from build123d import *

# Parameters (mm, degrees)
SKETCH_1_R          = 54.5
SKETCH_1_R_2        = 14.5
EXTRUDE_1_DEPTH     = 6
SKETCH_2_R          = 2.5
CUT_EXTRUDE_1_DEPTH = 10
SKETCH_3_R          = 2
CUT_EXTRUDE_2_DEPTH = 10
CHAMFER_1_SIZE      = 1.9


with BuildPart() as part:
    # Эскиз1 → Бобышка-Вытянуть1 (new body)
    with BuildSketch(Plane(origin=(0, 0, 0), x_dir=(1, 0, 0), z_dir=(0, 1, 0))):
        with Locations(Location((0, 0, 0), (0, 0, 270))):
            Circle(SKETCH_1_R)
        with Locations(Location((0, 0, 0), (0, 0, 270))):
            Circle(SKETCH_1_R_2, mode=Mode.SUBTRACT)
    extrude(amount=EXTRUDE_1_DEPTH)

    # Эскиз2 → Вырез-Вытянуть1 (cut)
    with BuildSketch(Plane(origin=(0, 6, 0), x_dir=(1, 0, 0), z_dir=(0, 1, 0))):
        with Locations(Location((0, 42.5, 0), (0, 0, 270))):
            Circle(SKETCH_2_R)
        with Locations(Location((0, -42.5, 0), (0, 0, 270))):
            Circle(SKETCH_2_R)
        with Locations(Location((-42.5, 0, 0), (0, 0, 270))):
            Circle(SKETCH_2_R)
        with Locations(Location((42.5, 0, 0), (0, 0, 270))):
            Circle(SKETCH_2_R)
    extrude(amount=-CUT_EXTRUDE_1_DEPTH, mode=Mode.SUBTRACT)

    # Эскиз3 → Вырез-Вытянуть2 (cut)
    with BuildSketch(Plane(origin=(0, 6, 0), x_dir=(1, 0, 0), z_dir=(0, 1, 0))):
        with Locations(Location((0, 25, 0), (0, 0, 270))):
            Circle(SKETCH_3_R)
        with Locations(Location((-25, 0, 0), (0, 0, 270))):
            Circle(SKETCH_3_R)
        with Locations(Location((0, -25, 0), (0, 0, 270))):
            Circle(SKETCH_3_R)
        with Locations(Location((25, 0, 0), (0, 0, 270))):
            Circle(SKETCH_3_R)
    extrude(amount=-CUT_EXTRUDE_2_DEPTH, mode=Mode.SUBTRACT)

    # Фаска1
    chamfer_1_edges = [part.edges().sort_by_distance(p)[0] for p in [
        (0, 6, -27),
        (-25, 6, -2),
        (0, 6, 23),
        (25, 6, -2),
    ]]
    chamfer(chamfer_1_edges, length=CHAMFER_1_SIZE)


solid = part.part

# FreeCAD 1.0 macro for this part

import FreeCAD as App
import Part
import Sketcher
from FreeCAD import Vector
Q = App.Units.Quantity


def edges_at(feature, points):
    """Names of the edges that pass closest to the given points."""
    edges = feature.Shape.Edges
    near = lambda p: min(range(len(edges)), key=lambda i: edges[i].distToShape(Part.Vertex(*p))[0])
    return sorted({f"Edge{near(p) + 1}" for p in points})

doc = App.newDocument("Part")
body = doc.addObject("PartDesign::Body", "Body")

sketch1 = body.newObject("Sketcher::SketchObject", "Sketch")
sketch1.AttachmentSupport = (doc.getObject("XZ_Plane"), [""])
sketch1.MapMode = "FlatFace"
sketch1.addGeometry([
    Part.Circle(Vector(0, 0, 0), Vector(0, 0, 1), 54),
    Part.Circle(Vector(0, 0, 0), Vector(0, 0, 1), 14),
], False)
sketch1.addConstraint([
    Sketcher.Constraint("Coincident", 0, 3, -1, 1),
    Sketcher.Constraint("Coincident", 1, 3, -1, 1),
    Sketcher.Constraint("Diameter", 0, Q("109 mm")),
    Sketcher.Constraint("Diameter", 1, Q("29 mm")),
])
pad1 = body.newObject("PartDesign::Pad", "Pad")
pad1.Profile = sketch1
pad1.Length = 6
pad1.Reversed = True

sketch2 = body.newObject("Sketcher::SketchObject", "Sketch001")
sketch2.AttachmentSupport = (doc.getObject("XZ_Plane"), [""])
sketch2.MapMode = "FlatFace"
sketch2.AttachmentOffset = App.Placement(Vector(0, 0, -6), App.Rotation())
sketch2.addGeometry([
    Part.Circle(Vector(0, -42.5, 0), Vector(0, 0, 1), 2.5),
    Part.Circle(Vector(0, 42.5, 0), Vector(0, 0, 1), 2.5),
    Part.Circle(Vector(-42.5, 0, 0), Vector(0, 0, 1), 2.5),
    Part.Circle(Vector(42.5, 0, 0), Vector(0, 0, 1), 2.5),
], False)
sketch2.addConstraint([
    Sketcher.Constraint("Equal", 0, 1),
    Sketcher.Constraint("Equal", 1, 2),
    Sketcher.Constraint("Equal", 2, 3),
    Sketcher.Constraint("Symmetric", 0, 3, 1, 3, -1, 1),
    Sketcher.Constraint("Symmetric", 2, 3, 3, 3, -1, 1),
    Sketcher.Constraint("PointOnObject", 0, 3, -2),
    Sketcher.Constraint("PointOnObject", 2, 3, -1),
    Sketcher.Constraint("Diameter", 0, Q("5 mm")),
    Sketcher.Constraint("DistanceY", 0, 3, 1, 3, Q("85 mm")),
    Sketcher.Constraint("DistanceX", 2, 3, 3, 3, Q("85 mm")),
])
pocket1 = body.newObject("PartDesign::Pocket", "Pocket")
pocket1.Profile = sketch2
pocket1.Length = 10
pocket1.Reversed = True

sketch3 = body.newObject("Sketcher::SketchObject", "Sketch002")
sketch3.AttachmentSupport = (doc.getObject("XZ_Plane"), [""])
sketch3.MapMode = "FlatFace"
sketch3.AttachmentOffset = App.Placement(Vector(0, 0, -6), App.Rotation())
sketch3.addGeometry([
    Part.Circle(Vector(0, -25, 0), Vector(0, 0, 1), 2),
    Part.Circle(Vector(-25, 0, 0), Vector(0, 0, 1), 2),
    Part.Circle(Vector(0, 25, 0), Vector(0, 0, 1), 2),
    Part.Circle(Vector(25, 0, 0), Vector(0, 0, 1), 2),
], False)
sketch3.addConstraint([
    Sketcher.Constraint("Equal", 0, 1),
    Sketcher.Constraint("Equal", 1, 2),
    Sketcher.Constraint("Equal", 2, 3),
    Sketcher.Constraint("Symmetric", 0, 3, 2, 3, -1, 1),
    Sketcher.Constraint("Symmetric", 1, 3, 3, 3, -1, 1),
    Sketcher.Constraint("PointOnObject", 0, 3, -2),
    Sketcher.Constraint("PointOnObject", 1, 3, -1),
    Sketcher.Constraint("Diameter", 0, Q("4 mm")),
    Sketcher.Constraint("DistanceY", 0, 3, -1, 1, Q("25 mm")),
    Sketcher.Constraint("DistanceX", 1, 3, -1, 1, Q("25 mm")),
])
pocket2 = body.newObject("PartDesign::Pocket", "Pocket001")
pocket2.Profile = sketch3
pocket2.Length = 10
pocket2.Reversed = True
doc.recompute()

chamfer = body.newObject("PartDesign::Chamfer", "Chamfer")
chamfer.Base = (pocket2, edges_at(pocket2, [
    (0, 6, -27),
    (-25, 6, -2),
    (0, 6, 23),
    (25, 6, -2),
]))
chamfer.Size = 1.9

doc.recompute()
